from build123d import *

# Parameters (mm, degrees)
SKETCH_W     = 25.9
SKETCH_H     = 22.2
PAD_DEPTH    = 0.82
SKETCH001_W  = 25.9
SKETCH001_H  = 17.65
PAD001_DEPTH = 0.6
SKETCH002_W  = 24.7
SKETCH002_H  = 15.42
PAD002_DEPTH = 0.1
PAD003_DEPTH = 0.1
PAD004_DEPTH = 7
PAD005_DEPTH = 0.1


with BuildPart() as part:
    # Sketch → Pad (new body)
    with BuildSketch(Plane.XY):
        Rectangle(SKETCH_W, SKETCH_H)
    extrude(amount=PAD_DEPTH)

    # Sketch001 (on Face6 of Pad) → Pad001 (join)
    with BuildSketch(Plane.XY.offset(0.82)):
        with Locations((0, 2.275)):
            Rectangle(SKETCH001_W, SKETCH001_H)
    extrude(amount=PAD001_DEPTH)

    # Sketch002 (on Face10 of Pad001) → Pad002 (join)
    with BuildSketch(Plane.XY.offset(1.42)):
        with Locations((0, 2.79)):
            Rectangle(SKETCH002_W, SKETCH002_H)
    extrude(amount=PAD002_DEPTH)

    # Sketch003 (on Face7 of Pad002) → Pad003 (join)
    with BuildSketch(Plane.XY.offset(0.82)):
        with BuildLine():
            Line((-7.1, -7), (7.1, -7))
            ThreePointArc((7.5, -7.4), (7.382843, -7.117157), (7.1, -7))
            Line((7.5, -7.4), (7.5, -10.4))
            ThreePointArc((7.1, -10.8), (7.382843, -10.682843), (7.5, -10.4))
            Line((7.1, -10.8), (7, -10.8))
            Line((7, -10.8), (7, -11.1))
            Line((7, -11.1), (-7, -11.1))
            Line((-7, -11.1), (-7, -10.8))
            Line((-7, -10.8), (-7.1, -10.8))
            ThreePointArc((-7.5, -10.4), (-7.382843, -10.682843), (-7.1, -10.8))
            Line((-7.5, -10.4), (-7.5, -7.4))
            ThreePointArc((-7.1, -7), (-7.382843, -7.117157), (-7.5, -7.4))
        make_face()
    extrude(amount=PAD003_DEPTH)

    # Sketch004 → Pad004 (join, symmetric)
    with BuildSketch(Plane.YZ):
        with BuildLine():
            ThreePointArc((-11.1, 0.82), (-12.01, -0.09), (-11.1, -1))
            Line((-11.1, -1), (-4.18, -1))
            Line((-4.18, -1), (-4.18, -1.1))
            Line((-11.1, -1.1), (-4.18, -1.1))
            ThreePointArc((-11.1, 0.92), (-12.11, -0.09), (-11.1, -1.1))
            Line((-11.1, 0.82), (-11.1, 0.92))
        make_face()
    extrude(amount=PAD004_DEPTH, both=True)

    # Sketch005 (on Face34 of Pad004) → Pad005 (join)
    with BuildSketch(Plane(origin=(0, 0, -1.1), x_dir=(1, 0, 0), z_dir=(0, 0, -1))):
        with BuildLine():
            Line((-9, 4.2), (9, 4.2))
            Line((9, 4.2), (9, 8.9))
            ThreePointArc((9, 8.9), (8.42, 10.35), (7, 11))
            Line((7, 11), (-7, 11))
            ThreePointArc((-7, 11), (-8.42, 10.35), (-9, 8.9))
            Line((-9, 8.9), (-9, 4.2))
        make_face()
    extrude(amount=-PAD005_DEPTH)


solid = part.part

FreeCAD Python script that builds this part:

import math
import FreeCAD as App
import Part
import Sketcher


def add_polygon(sketch, points):
    """Adds a closed chain of lines whose ends are joined by coincident constraints."""
    first, n = sketch.GeometryCount, len(points)
    for a, b in zip(points, points[1:] + points[:1]):
        sketch.addGeometry(Part.LineSegment(App.Vector(*a, 0), App.Vector(*b, 0)), False)
    for i in range(n):
        sketch.addConstraint(Sketcher.Constraint("Coincident", first + i, 2, first + (i + 1) % n, 1))

doc = App.newDocument("Part")
body = doc.addObject("PartDesign::Body", "Body")

# Sketch on XY plane
sketch1 = body.newObject("Sketcher::SketchObject", "Sketch")
sketch1.AttachmentSupport = (doc.getObject("XY_Plane"), [""])
sketch1.MapMode = "FlatFace"
add_polygon(sketch1, [(-13, 11), (-13, -11), (13, -11), (13, 11)])  # lines 0-3
sketch1.addConstraint([
    Sketcher.Constraint("Vertical", 0),
    Sketcher.Constraint("Horizontal", 1),
    Sketcher.Constraint("Vertical", 2),
    Sketcher.Constraint("Horizontal", 3),
    Sketcher.Constraint("Symmetric", 0, 2, 2, 2, -1, 1),
    Sketcher.Constraint("DistanceX", 1, 1, 1, 2, 25.9),
    Sketcher.Constraint("DistanceY", 0, 2, 0, 1, 22.2),
])
pad1 = body.newObject("PartDesign::Pad", "Pad")
pad1.Profile = sketch1
pad1.Length = 0.82

# Sketch on XY plane
sketch2 = body.newObject("Sketcher::SketchObject", "Sketch001")
sketch2.AttachmentSupport = (doc.getObject("XY_Plane"), [""])
sketch2.MapMode = "FlatFace"
sketch2.AttachmentOffset = App.Placement(App.Vector(0, 0, 0.82), App.Rotation())
add_polygon(sketch2, [(-13, 11), (-13, -7), (13, -7), (13, 11)])  # lines 0-3
sketch2.addConstraint([
    Sketcher.Constraint("Vertical", 0),
    Sketcher.Constraint("Horizontal", 1),
    Sketcher.Constraint("Vertical", 2),
    Sketcher.Constraint("Horizontal", 3),
    Sketcher.Constraint("DistanceX", 1, 1, 1, 2, 25.9),
    Sketcher.Constraint("DistanceY", 0, 2, 0, 1, 17.65),
    Sketcher.Constraint("DistanceY", -1, 1, 2, 2, 11.1),
    Sketcher.Constraint("DistanceX", 0, 2, -1, 1, 12.95),
])
pad2 = body.newObject("PartDesign::Pad", "Pad001")
pad2.Profile = sketch2
pad2.Length = 0.6

# Sketch on XY plane
sketch3 = body.newObject("Sketcher::SketchObject", "Sketch002")
sketch3.AttachmentSupport = (doc.getObject("XY_Plane"), [""])
sketch3.MapMode = "FlatFace"
sketch3.AttachmentOffset = App.Placement(App.Vector(0, 0, 1.42), App.Rotation())
add_polygon(sketch3, [(-12, 10), (-12, -5), (12, -5), (12, 10)])  # lines 0-3
sketch3.addConstraint([
    Sketcher.Constraint("Vertical", 0),
    Sketcher.Constraint("Horizontal", 1),
    Sketcher.Constraint("Vertical", 2),
    Sketcher.Constraint("Horizontal", 3),
    Sketcher.Constraint("DistanceX", 1, 1, 1, 2, 24.7),
    Sketcher.Constraint("DistanceY", 0, 2, 0, 1, 15.42),
    Sketcher.Constraint("DistanceY", -1, 1, 2, 2, 10.5),
    Sketcher.Constraint("DistanceX", 0, 2, -1, 1, 12.35),
])
pad3 = body.newObject("PartDesign::Pad", "Pad002")
pad3.Profile = sketch3
pad3.Length = 0.1

# Sketch on XY plane
sketch4 = body.newObject("Sketcher::SketchObject", "Sketch003")
sketch4.AttachmentSupport = (doc.getObject("XY_Plane"), [""])
sketch4.MapMode = "FlatFace"
sketch4.AttachmentOffset = App.Placement(App.Vector(0, 0, 0.82), App.Rotation())
sketch4.addGeometry([
    Part.LineSegment(App.Vector(7.1, -7, 0), App.Vector(-7.1, -7, 0)),  # 0
    Part.ArcOfCircle(Part.Circle(App.Vector(-7.1, -7.4, 0), App.Vector(0, 0, 1), 0.4), math.radians(90), math.radians(180)),  # 1
    Part.LineSegment(App.Vector(-7.5, -7.4, 0), App.Vector(-7.5, -10.4, 0)),  # 2
    Part.ArcOfCircle(Part.Circle(App.Vector(-7.1, -10.4, 0), App.Vector(0, 0, 1), 0.4), math.radians(180), math.radians(270)),  # 3
    Part.LineSegment(App.Vector(-7.1, -10.8, 0), App.Vector(-7, -10.8, 0)),  # 4
    Part.LineSegment(App.Vector(-7, -10.8, 0), App.Vector(-7, -11.1, 0)),  # 5
    Part.LineSegment(App.Vector(-7, -11.1, 0), App.Vector(7, -11.1, 0)),  # 6
    Part.LineSegment(App.Vector(7, -11.1, 0), App.Vector(7, -10.8, 0)),  # 7
    Part.LineSegment(App.Vector(7, -10.8, 0), App.Vector(7.1, -10.8, 0)),  # 8
    Part.ArcOfCircle(Part.Circle(App.Vector(7.1, -10.4, 0), App.Vector(0, 0, 1), 0.4), math.radians(-90), math.radians(0)),  # 9
    Part.LineSegment(App.Vector(7.5, -10.4, 0), App.Vector(7.5, -7.4, 0)),  # 10
    Part.ArcOfCircle(Part.Circle(App.Vector(7.1, -7.4, 0), App.Vector(0, 0, 1), 0.4), math.radians(0), math.radians(90)),  # 11
], False)
sketch4.addConstraint([
    Sketcher.Constraint("Coincident", 0, 2, 1, 1),
    Sketcher.Constraint("Coincident", 1, 2, 2, 1),
    Sketcher.Constraint("Coincident", 2, 2, 3, 1),
    Sketcher.Constraint("Coincident", 3, 2, 4, 1),
    Sketcher.Constraint("Coincident", 4, 2, 5, 1),
    Sketcher.Constraint("Coincident", 5, 2, 6, 1),
    Sketcher.Constraint("Coincident", 6, 2, 7, 1),
    Sketcher.Constraint("Coincident", 7, 2, 8, 1),
    Sketcher.Constraint("Coincident", 8, 2, 9, 1),
    Sketcher.Constraint("Coincident", 9, 2, 10, 1),
    Sketcher.Constraint("Coincident", 10, 2, 11, 1),
    Sketcher.Constraint("Coincident", 11, 2, 0, 1),
    Sketcher.Constraint("Horizontal", 0),
    Sketcher.Constraint("Vertical", 2),
    Sketcher.Constraint("Horizontal", 4),
    Sketcher.Constraint("Vertical", 5),
    Sketcher.Constraint("Horizontal", 6),
    Sketcher.Constraint("Vertical", 7),
    Sketcher.Constraint("Horizontal", 8),
    Sketcher.Constraint("Vertical", 10),
    Sketcher.Constraint("Equal", 1, 3),
    Sketcher.Constraint("Equal", 3, 9),
    Sketcher.Constraint("Equal", 9, 11),
    Sketcher.Constraint("Symmetric", 3, 3, 9, 3, -2),
    Sketcher.Constraint("Horizontal", 11, 3, 1, 2),
    Sketcher.Constraint("Horizontal", 9, 3, 2, 2),
    Sketcher.Constraint("Horizontal", 2, 2, 9, 2),
    Sketcher.Constraint("Horizontal", 1, 2, 10, 2),
    Sketcher.Constraint("Vertical", 3, 3, 0, 2),
    Sketcher.Constraint("Vertical", 0, 2, 3, 2),
    Sketcher.Constraint("Vertical", 11, 3, 8, 2),
    Sketcher.Constraint("Vertical", 8, 2, 11, 2),
    Sketcher.Constraint("Equal", 4, 8),
    Sketcher.Constraint("Radius", 1, 0.399999),
    Sketcher.Constraint("DistanceX", 6, 1, 6, 2, 14.0),
    Sketcher.Constraint("DistanceY", 2, 2, 2, 1, 3.0),
    Sketcher.Constraint("DistanceX", 0, 2, 0, 1, 14.2),
    Sketcher.Constraint("DistanceY", 5, 2, 5, 1, 0.3),
    Sketcher.Constraint("DistanceY", 0, 2, -1, 1, 7.0),
])
pad4 = body.newObject("PartDesign::Pad", "Pad003")
pad4.Profile = sketch4
pad4.Length = 0.1

# Sketch on YZ plane
sketch5 = body.newObject("Sketcher::SketchObject", "Sketch004")
sketch5.AttachmentSupport = (doc.getObject("YZ_Plane"), [""])
sketch5.MapMode = "FlatFace"
sketch5.addGeometry([
    Part.ArcOfCircle(Part.Circle(App.Vector(-11.1, -0.09, 0), App.Vector(0, 0, 1), 0.91), math.radians(90), math.radians(270)),  # 0
    Part.LineSegment(App.Vector(-11.1, 0.82, 0), App.Vector(-11.1, 0.92, 0)),  # 1
    Part.ArcOfCircle(Part.Circle(App.Vector(-11.1, -0.09, 0), App.Vector(0, 0, 1), 1.01), math.radians(90), math.radians(270)),  # 2
    Part.LineSegment(App.Vector(-11.1, -1.1, 0), App.Vector(-4.18, -1.1, 0)),  # 3
    Part.LineSegment(App.Vector(-4.18, -1.1, 0), App.Vector(-4.18, -1, 0)),  # 4
    Part.LineSegment(App.Vector(-4.18, -1, 0), App.Vector(-11.1, -1, 0)),  # 5
], False)
sketch5.addConstraint([
    Sketcher.Constraint("Coincident", 0, 1, 1, 1),
    Sketcher.Constraint("Coincident", 1, 2, 2, 1),
    Sketcher.Constraint("Tangent", 2, 2, 3, 1),
    Sketcher.Constraint("Coincident", 3, 2, 4, 1),
    Sketcher.Constraint("Coincident", 4, 2, 5, 1),
    Sketcher.Constraint("Tangent", 5, 2, 0, 2),
    Sketcher.Constraint("Vertical", 1),
    Sketcher.Constraint("Horizontal", 3),
    Sketcher.Constraint("Vertical", 4),
    Sketcher.Constraint("Horizontal", 5),
    Sketcher.Constraint("Coincident", 2, 3, 0, 3),
    Sketcher.Constraint("Vertical", 2, 3, 0, 1),
    Sketcher.Constraint("Radius", 0, 0.91),
    Sketcher.Constraint("Radius", 2, 1.01),
    Sketcher.Constraint("DistanceY", 4, 2, -1, 1, 1.0),
    Sketcher.Constraint("DistanceX", 3, 1, 3, 2, 6.92),
    Sketcher.Constraint("DistanceX", 0, 3, -1, 1, 11.1),
])
pad5 = body.newObject("PartDesign::Pad", "Pad004")
pad5.Profile = sketch5
pad5.Length = 14
pad5.Midplane = True

# Sketch on XY plane
sketch6 = body.newObject("Sketcher::SketchObject", "Sketch005")
sketch6.AttachmentSupport = (doc.getObject("XY_Plane"), [""])
sketch6.MapMode = "FlatFace"
sketch6.AttachmentOffset = App.Placement(App.Vector(0, 0, -1.1), App.Rotation())
sketch6.addGeometry([
    Part.LineSegment(App.Vector(-9, -4.2, 0), App.Vector(9, -4.2, 0)),  # 0
    Part.LineSegment(App.Vector(9, -4.2, 0), App.Vector(9, -8.9, 0)),  # 1
    Part.ArcOfCircle(Part.Circle(App.Vector(6.9, -8.9, 0), App.Vector(0, 0, 1), 2.1), math.radians(-87), math.radians(0)),  # 2
    Part.LineSegment(App.Vector(7, -11, 0), App.Vector(-7, -11, 0)),  # 3
    Part.ArcOfCircle(Part.Circle(App.Vector(-6.9, -8.9, 0), App.Vector(0, 0, 1), 2.1), math.radians(180), math.radians(267)),  # 4
    Part.LineSegment(App.Vector(-9, -8.9, 0), App.Vector(-9, -4.2, 0)),  # 5
], False)
sketch6.addConstraint([
    Sketcher.Constraint("Coincident", 0, 2, 1, 1),
    Sketcher.Constraint("Tangent", 1, 2, 2, 2),
    Sketcher.Constraint("Coincident", 2, 1, 3, 1),
    Sketcher.Constraint("Coincident", 3, 2, 4, 2),
    Sketcher.Constraint("Tangent", 4, 1, 5, 1),
    Sketcher.Constraint("Coincident", 5, 2, 0, 1),
    Sketcher.Constraint("Horizontal", 0),
    Sketcher.Constraint("Vertical", 1),
    Sketcher.Constraint("Horizontal", 3),
    Sketcher.Constraint("Vertical", 5),
    Sketcher.Constraint("Equal", 2, 4),
    Sketcher.Constraint("Symmetric", 2, 3, 4, 3, -2),
    Sketcher.Constraint("DistanceX", 0, 1, 0, 2, 18.0),
    Sketcher.Constraint("DistanceX", 3, 2, 3, 1, 14.0),
    Sketcher.Constraint("DistanceY", 1, 2, 1, 1, 4.7),
    Sketcher.Constraint("DistanceY", 2, 1, -1, 1, 11.0),
    Sketcher.Constraint("DistanceY", 2, 3, -1, 1, 8.9),
])
pad6 = body.newObject("PartDesign::Pad", "Pad005")
pad6.Profile = sketch6
pad6.Length = 0.1

doc.recompute()
